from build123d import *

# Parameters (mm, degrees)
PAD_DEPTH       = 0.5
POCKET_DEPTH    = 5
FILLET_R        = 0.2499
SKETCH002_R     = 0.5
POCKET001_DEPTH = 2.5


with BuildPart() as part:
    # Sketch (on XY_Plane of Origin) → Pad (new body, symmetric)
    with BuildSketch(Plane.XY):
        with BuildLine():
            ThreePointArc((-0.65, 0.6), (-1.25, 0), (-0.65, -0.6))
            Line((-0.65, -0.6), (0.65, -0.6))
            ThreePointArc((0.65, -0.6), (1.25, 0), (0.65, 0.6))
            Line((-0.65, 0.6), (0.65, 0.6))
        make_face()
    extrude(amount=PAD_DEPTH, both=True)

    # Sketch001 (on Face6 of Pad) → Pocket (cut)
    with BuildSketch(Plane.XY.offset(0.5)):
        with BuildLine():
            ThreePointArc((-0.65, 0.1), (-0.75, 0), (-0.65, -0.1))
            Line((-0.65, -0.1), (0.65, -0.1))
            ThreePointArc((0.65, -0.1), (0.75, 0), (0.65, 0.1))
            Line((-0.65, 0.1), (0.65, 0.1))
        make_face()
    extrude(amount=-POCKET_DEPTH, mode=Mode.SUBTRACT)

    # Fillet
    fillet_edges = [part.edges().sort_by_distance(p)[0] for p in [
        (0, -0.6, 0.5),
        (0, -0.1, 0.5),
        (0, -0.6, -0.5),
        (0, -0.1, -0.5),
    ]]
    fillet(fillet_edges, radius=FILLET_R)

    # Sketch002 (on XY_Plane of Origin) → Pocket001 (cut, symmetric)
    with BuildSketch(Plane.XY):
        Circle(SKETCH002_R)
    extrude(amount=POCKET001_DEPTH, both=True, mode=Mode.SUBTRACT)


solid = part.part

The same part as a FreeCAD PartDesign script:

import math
import FreeCAD as App
import Part
import Sketcher

V = App.Vector


def edges_at(feature, points):
    """Names of the edges that pass closest to the given points."""
    edges = feature.Shape.Edges
    near = lambda p: min(range(len(edges)), key=lambda i: edges[i].distToShape(Part.Vertex(*p))[0])
    return sorted({f"Edge{near(p) + 1}" for p in points})

doc = App.newDocument("Part")
params = doc.addObject("Spreadsheet::Sheet", "Params")
for row, (alias, value) in enumerate([
    ("sketch1_radius", "0.6 mm"),
    ("sketch1_width", "1.3 mm"),
    ("pad1_length", "1 mm"),
    ("sketch2_radius", "0.1 mm"),
    ("sketch2_width", "1.3 mm"),
    ("pocket1_length", "5 mm"),
    ("fillet_radius", "0.2499 mm"),
    ("sketch3_diameter", "1 mm"),
    ("pocket2_length", "5 mm"),
], start=1):
    params.set(f"A{row}", alias)
    params.set(f"B{row}", "=" + value)
    params.setAlias(f"B{row}", alias)

body = doc.addObject("PartDesign::Body", "Body")

# Sketch on XY plane
sketch1 = body.newObject("Sketcher::SketchObject", "Sketch")
sketch1.AttachmentSupport = (doc.getObject("XY_Plane"), [""])
sketch1.MapMode = "FlatFace"
sketch1.addGeometry(Part.ArcOfCircle(Part.Circle(V(-0.7, 0, 0), V(0, 0, 1), 0.6), math.radians(90), math.radians(270)), False)
sketch1.addGeometry(Part.LineSegment(V(-0.7, -0.6, 0), V(0.7, -0.6, 0)), False)
sketch1.addGeometry(Part.ArcOfCircle(Part.Circle(V(0.7, 0, 0), V(0, 0, 1), 0.6), math.radians(-90), math.radians(90)), False)
sketch1.addGeometry(Part.LineSegment(V(0.7, 0.6, 0), V(-0.7, 0.6, 0)), False)
sketch1.addConstraint(Sketcher.Constraint("Tangent", 0, 2, 1, 1))
sketch1.addConstraint(Sketcher.Constraint("Tangent", 1, 2, 2, 1))
sketch1.addConstraint(Sketcher.Constraint("Tangent", 2, 2, 3, 1))
sketch1.addConstraint(Sketcher.Constraint("Tangent", 3, 2, 0, 1))
sketch1.addConstraint(Sketcher.Constraint("Horizontal", 1))
sketch1.addConstraint(Sketcher.Constraint("Horizontal", 3))
sketch1.addConstraint(Sketcher.Constraint("Symmetric", 0, 3, 2, 3, -1, 1))
sketch1.addConstraint(Sketcher.Constraint("Radius", 0, 0.6))
sketch1.addConstraint(Sketcher.Constraint("DistanceX", 1, 1, 1, 2, 1.3))
sketch1.setExpression("Constraints[7]", "Params.sketch1_radius")
sketch1.setExpression("Constraints[8]", "Params.sketch1_width")
pad1 = body.newObject("PartDesign::Pad", "Pad")
pad1.Profile = sketch1
pad1.setExpression("Length", "Params.pad1_length")
pad1.Midplane = True

# Sketch on XY plane
sketch2 = body.newObject("Sketcher::SketchObject", "Sketch001")
sketch2.AttachmentSupport = (doc.getObject("XY_Plane"), [""])
sketch2.MapMode = "FlatFace"
sketch2.AttachmentOffset = App.Placement(V(0, 0, 0.5), App.Rotation())
sketch2.addGeometry(Part.ArcOfCircle(Part.Circle(V(-0.65, 0, 0), V(0, 0, 1), 0.1), math.radians(90), math.radians(270)), False)
sketch2.addGeometry(Part.LineSegment(V(-0.65, -0.1, 0), V(0.65, -0.1, 0)), False)
sketch2.addGeometry(Part.ArcOfCircle(Part.Circle(V(0.65, 0, 0), V(0, 0, 1), 0.1), math.radians(-90), math.radians(90)), False)
sketch2.addGeometry(Part.LineSegment(V(0.65, 0.1, 0), V(-0.65, 0.1, 0)), False)
sketch2.addConstraint(Sketcher.Constraint("Tangent", 0, 2, 1, 1))
sketch2.addConstraint(Sketcher.Constraint("Tangent", 1, 2, 2, 1))
sketch2.addConstraint(Sketcher.Constraint("Tangent", 2, 2, 3, 1))
sketch2.addConstraint(Sketcher.Constraint("Tangent", 3, 2, 0, 1))
sketch2.addConstraint(Sketcher.Constraint("Horizontal", 1))
sketch2.addConstraint(Sketcher.Constraint("Horizontal", 3))
sketch2.addConstraint(Sketcher.Constraint("Symmetric", 0, 3, 2, 3, -1, 1))
sketch2.addConstraint(Sketcher.Constraint("Radius", 0, 0.1))
sketch2.addConstraint(Sketcher.Constraint("DistanceX", 1, 1, 1, 2, 1.3))
sketch2.setExpression("Constraints[7]", "Params.sketch2_radius")
sketch2.setExpression("Constraints[8]", "Params.sketch2_width")
pocket1 = body.newObject("PartDesign::Pocket", "Pocket")
pocket1.Profile = sketch2
pocket1.setExpression("Length", "Params.pocket1_length")
doc.recompute()

fillet = body.newObject("PartDesign::Fillet", "Fillet")
fillet.Base = (pocket1, edges_at(pocket1, [
    (0, -0.6, 0.5),
    (0, -0.1, 0.5),
    (0, -0.6, -0.5),
    (0, -0.1, -0.5),
]))
fillet.setExpression("Radius", "Params.fillet_radius")

# Sketch on XY plane
sketch3 = body.newObject("Sketcher::SketchObject", "Sketch002")
sketch3.AttachmentSupport = (doc.getObject("XY_Plane"), [""])
sketch3.MapMode = "FlatFace"
sketch3.addGeometry(Part.Circle(V(0, 0, 0), V(0, 0, 1), 0.5), False)
sketch3.addConstraint(Sketcher.Constraint("Coincident", 0, 3, -1, 1))
sketch3.addConstraint(Sketcher.Constraint("Diameter", 0, 1.0))
sketch3.setExpression("Constraints[1]", "Params.sketch3_diameter")
pocket2 = body.newObject("PartDesign::Pocket", "Pocket001")
pocket2.Profile = sketch3
pocket2.setExpression("Length", "Params.pocket2_length")
pocket2.Midplane = True

doc.recompute()
